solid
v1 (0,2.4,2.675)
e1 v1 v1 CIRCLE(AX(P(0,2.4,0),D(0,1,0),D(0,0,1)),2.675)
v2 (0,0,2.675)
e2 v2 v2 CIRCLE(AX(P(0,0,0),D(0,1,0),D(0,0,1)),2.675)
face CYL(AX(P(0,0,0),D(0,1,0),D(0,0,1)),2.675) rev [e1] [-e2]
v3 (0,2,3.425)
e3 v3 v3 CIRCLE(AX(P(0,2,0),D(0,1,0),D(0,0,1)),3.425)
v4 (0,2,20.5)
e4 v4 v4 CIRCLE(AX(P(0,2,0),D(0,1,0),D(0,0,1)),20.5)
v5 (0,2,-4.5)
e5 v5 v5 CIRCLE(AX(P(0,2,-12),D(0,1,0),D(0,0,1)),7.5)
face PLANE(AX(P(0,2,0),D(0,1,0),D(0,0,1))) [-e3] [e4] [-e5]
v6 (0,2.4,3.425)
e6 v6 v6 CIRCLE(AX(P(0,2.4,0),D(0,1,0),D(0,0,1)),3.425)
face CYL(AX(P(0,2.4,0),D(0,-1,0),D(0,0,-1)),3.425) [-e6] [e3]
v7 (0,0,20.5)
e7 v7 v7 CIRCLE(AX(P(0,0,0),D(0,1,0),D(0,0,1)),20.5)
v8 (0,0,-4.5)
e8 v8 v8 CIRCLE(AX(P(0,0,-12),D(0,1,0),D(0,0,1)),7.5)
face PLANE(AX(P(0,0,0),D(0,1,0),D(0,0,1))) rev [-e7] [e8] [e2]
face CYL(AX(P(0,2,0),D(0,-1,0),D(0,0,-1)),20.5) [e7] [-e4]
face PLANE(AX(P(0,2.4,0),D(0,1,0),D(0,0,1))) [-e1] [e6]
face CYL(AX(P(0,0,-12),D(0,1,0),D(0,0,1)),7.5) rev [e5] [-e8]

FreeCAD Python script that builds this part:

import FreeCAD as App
import Part
import Sketcher
from FreeCAD import Vector

doc = App.newDocument("Part")
body = doc.addObject("PartDesign::Body", "Body")

# Sketch on XZ plane
sketch1 = doc.addObject("Sketcher::SketchObject", "Sketch")
body.addObject(sketch1)
sketch1.AttachmentSupport = (doc.XZ_Plane, [""])
sketch1.MapMode = "FlatFace"
sketch1.addGeometry(Part.Circle(Vector(0, 0, 0), Vector(0, 0, 1), 20.5), False)
sketch1.addConstraint([
    Sketcher.Constraint("Coincident", 0, 3, -1, 1),
    Sketcher.Constraint("Diameter", 0, 41.0),
])
pad1 = doc.addObject("PartDesign::Pad", "Pad")
body.addObject(pad1)
pad1.Profile = sketch1
pad1.Length = 2
pad1.Reversed = True

# Sketch on XZ plane
sketch2 = doc.addObject("Sketcher::SketchObject", "Sketch001")
body.addObject(sketch2)
sketch2.AttachmentSupport = (doc.XZ_Plane, [""])
sketch2.MapMode = "FlatFace"
sketch2.AttachmentOffset = App.Placement(Vector(0, 0, -2), App.Rotation())
sketch2.addGeometry(Part.Circle(Vector(0, 0, 0), Vector(0, 0, 1), 2.675), False)
sketch2.addConstraint([
    Sketcher.Constraint("Coincident", 0, 3, -1, 1),
    Sketcher.Constraint("Diameter", 0, 5.35),
])
pocket1 = doc.addObject("PartDesign::Pocket", "Pocket")
body.addObject(pocket1)
pocket1.Profile = sketch2
pocket1.Length = 2
pocket1.Reversed = True

# Sketch on XZ plane
sketch3 = doc.addObject("Sketcher::SketchObject", "Sketch002")
body.addObject(sketch3)
sketch3.AttachmentSupport = (doc.XZ_Plane, [""])
sketch3.MapMode = "FlatFace"
sketch3.AttachmentOffset = App.Placement(Vector(0, 0, -2.4), App.Rotation())
sketch3.addGeometry([
    Part.Circle(Vector(0, 0, 0), Vector(0, 0, 1), 3.425),
    Part.Circle(Vector(0, 0, 0), Vector(0, 0, 1), 2.675),
], False)
sketch3.addConstraint([
    Sketcher.Constraint("Coincident", 0, 3, -1, 1),
    Sketcher.Constraint("Coincident", 1, 3, -1, 1),
    Sketcher.Constraint("Diameter", 0, 6.85),
    Sketcher.Constraint("Diameter", 1, 5.35),
])
pad2 = doc.addObject("PartDesign::Pad", "Pad001")
body.addObject(pad2)
pad2.Profile = sketch3
pad2.Length = 0.4

# Sketch on XZ plane
sketch4 = doc.addObject("Sketcher::SketchObject", "Sketch003")
body.addObject(sketch4)
sketch4.AttachmentSupport = (doc.XZ_Plane, [""])
sketch4.MapMode = "FlatFace"
sketch4.AttachmentOffset = App.Placement(Vector(0, 0, -2), App.Rotation())
sketch4.addGeometry(Part.Circle(Vector(0, -12, 0), Vector(0, 0, 1), 7.5), False)
sketch4.addConstraint([
    Sketcher.Constraint("PointOnObject", 0, 3, -2),
    Sketcher.Constraint("Diameter", 0, 15.0),
    Sketcher.Constraint("DistanceY", 0, 3, -1, 1, 12.0),
])
pocket2 = doc.addObject("PartDesign::Pocket", "Pocket001")
body.addObject(pocket2)
pocket2.Profile = sketch4
pocket2.Length = 2
pocket2.Reversed = True

doc.recompute()
